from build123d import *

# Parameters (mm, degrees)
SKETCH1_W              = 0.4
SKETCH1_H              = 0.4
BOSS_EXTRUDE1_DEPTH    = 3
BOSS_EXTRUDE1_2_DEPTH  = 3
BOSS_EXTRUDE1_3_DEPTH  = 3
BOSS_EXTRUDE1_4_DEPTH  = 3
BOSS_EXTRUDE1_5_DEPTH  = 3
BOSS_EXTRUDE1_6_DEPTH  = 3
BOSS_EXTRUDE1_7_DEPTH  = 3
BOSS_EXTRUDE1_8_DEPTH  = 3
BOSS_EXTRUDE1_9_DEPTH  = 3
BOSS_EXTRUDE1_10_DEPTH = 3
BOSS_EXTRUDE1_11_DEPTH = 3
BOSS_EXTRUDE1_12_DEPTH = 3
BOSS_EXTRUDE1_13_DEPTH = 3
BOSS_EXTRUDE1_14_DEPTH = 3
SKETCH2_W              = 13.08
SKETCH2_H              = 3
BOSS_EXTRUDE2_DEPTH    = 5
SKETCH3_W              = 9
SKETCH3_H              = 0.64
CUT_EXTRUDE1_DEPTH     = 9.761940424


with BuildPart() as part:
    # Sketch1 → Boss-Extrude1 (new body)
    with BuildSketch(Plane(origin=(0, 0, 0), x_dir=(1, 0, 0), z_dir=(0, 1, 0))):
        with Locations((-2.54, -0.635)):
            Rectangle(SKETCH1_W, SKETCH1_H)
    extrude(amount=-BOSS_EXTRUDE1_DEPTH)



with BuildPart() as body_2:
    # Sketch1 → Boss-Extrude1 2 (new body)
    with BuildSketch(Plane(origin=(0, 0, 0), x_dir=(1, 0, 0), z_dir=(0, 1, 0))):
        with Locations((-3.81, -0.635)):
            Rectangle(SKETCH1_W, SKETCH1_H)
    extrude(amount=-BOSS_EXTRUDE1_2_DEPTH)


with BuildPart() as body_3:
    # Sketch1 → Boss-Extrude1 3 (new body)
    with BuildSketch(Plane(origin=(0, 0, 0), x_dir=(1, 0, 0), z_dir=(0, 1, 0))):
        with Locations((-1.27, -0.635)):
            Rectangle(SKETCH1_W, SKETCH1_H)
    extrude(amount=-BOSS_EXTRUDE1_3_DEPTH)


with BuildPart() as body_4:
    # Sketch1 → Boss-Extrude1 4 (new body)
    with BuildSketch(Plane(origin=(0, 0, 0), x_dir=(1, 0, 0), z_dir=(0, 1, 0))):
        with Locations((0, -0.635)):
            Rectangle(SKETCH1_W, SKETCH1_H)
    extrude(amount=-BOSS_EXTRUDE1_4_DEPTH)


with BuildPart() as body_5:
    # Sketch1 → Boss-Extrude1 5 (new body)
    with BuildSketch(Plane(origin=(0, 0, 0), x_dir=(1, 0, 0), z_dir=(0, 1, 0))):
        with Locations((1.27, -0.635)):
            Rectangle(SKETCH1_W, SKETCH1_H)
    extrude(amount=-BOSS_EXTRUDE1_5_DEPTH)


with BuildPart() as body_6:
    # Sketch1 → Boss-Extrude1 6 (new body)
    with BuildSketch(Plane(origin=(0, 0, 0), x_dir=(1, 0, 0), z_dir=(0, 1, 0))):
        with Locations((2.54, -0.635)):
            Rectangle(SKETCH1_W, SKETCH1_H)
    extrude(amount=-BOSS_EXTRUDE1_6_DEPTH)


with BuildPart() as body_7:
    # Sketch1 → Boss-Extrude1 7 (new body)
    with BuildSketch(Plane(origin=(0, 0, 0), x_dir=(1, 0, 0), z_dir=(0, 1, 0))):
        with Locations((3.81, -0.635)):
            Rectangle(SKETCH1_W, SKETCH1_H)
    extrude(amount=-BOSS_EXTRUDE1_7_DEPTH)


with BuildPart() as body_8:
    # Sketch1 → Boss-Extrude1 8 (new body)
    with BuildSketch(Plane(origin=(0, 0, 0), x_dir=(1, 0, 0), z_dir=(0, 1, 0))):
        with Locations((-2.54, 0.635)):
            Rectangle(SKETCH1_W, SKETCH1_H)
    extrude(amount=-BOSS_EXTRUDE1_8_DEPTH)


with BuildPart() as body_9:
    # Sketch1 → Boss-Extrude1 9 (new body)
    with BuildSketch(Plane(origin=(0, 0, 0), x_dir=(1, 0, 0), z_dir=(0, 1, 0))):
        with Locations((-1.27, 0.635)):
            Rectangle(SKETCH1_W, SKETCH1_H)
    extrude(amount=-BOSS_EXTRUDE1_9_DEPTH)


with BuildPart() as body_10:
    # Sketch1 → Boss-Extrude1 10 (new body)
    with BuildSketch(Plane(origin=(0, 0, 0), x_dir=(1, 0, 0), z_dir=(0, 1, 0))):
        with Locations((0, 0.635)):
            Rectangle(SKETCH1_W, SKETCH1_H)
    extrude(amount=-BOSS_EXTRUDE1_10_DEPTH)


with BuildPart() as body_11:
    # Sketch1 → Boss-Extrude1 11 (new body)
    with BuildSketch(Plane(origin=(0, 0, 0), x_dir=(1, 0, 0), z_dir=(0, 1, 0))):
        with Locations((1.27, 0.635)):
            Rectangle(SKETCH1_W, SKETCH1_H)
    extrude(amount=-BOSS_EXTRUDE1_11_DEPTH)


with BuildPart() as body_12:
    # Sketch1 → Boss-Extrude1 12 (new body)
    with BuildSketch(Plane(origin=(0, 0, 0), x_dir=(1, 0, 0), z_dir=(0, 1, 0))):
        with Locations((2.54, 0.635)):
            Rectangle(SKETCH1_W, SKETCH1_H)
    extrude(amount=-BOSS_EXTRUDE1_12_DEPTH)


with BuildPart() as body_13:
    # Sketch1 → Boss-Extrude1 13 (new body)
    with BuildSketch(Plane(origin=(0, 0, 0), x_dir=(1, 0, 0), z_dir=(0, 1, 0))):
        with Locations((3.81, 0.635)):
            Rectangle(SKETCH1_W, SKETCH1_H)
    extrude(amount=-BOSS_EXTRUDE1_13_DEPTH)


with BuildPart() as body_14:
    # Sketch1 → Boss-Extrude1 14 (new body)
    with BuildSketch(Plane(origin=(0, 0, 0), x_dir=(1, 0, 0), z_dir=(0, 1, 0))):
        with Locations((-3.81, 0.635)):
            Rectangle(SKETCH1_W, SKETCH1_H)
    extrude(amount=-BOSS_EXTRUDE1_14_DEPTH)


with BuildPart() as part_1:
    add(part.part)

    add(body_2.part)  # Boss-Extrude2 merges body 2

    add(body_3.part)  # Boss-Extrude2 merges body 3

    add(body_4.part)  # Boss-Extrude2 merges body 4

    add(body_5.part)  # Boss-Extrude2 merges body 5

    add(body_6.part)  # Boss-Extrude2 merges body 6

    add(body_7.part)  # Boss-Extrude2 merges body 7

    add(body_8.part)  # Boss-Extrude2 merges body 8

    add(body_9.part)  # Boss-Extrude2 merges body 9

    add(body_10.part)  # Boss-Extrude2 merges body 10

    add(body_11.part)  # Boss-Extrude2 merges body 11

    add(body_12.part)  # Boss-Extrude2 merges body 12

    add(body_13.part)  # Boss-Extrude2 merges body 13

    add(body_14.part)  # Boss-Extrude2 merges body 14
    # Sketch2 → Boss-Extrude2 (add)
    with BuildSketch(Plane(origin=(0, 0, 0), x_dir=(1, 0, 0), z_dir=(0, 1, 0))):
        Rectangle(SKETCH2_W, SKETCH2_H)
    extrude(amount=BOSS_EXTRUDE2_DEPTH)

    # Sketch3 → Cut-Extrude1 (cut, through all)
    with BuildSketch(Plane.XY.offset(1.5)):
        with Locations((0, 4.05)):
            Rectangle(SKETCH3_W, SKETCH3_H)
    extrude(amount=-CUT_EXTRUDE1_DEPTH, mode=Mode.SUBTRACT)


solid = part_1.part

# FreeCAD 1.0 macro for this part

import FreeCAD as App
import Part
import Sketcher

doc = App.newDocument("Part")
body = doc.addObject("PartDesign::Body", "Body")

# Sketch on XZ plane
sketch1 = doc.addObject("Sketcher::SketchObject", "Sketch")
body.addObject(sketch1)
sketch1.AttachmentSupport = (doc.XZ_Plane, [""])
sketch1.MapMode = "FlatFace"
sketch1.addGeometry([
    Part.LineSegment(App.Vector(-2.74, 0.43, 0), App.Vector(-2.74, 0.83, 0)),
    Part.LineSegment(App.Vector(-2.74, 0.83, 0), App.Vector(-2.34, 0.83, 0)),
    Part.LineSegment(App.Vector(-2.34, 0.83, 0), App.Vector(-2.34, 0.43, 0)),
    Part.LineSegment(App.Vector(-2.34, 0.43, 0), App.Vector(-2.74, 0.43, 0)),
], False)
sketch1.addConstraint([
    Sketcher.Constraint("Coincident", 0, 2, 1, 1),
    Sketcher.Constraint("Coincident", 1, 2, 2, 1),
    Sketcher.Constraint("Coincident", 2, 2, 3, 1),
    Sketcher.Constraint("Coincident", 3, 2, 0, 1),
    Sketcher.Constraint("Vertical", 0),
    Sketcher.Constraint("Horizontal", 1),
    Sketcher.Constraint("Vertical", 2),
    Sketcher.Constraint("Horizontal", 3),
    Sketcher.Constraint("Equal", 3, 0),
    Sketcher.Constraint("DistanceX", 1, 1, 1, 2, 0.4),
    Sketcher.Constraint("DistanceX", 0, 2, -1, 1, 2.74),
    Sketcher.Constraint("DistanceY", -1, 1, 0, 2, 0.835),
])
pad1 = doc.addObject("PartDesign::Pad", "Pad")
body.addObject(pad1)
pad1.Profile = sketch1
pad1.Length = 3
body2 = doc.addObject("PartDesign::Body", "Body001")

# Sketch on XZ plane
sketch2 = doc.addObject("Sketcher::SketchObject", "Sketch001")
body2.addObject(sketch2)
sketch2.AttachmentSupport = (doc.getObject("XZ_Plane001"), [""])
sketch2.MapMode = "FlatFace"
sketch2.addGeometry([
    Part.LineSegment(App.Vector(-4.01, 0.43, 0), App.Vector(-4.01, 0.83, 0)),
    Part.LineSegment(App.Vector(-4.01, 0.83, 0), App.Vector(-3.61, 0.83, 0)),
    Part.LineSegment(App.Vector(-3.61, 0.83, 0), App.Vector(-3.61, 0.43, 0)),
    Part.LineSegment(App.Vector(-3.61, 0.43, 0), App.Vector(-4.01, 0.43, 0)),
], False)
sketch2.addConstraint([
    Sketcher.Constraint("Coincident", 0, 2, 1, 1),
    Sketcher.Constraint("Coincident", 1, 2, 2, 1),
    Sketcher.Constraint("Coincident", 2, 2, 3, 1),
    Sketcher.Constraint("Coincident", 3, 2, 0, 1),
    Sketcher.Constraint("Vertical", 0),
    Sketcher.Constraint("Horizontal", 1),
    Sketcher.Constraint("Vertical", 2),
    Sketcher.Constraint("Horizontal", 3),
    Sketcher.Constraint("Equal", 3, 0),
    Sketcher.Constraint("DistanceX", 1, 1, 1, 2, 0.4),
    Sketcher.Constraint("DistanceX", 0, 2, -1, 1, 4.01),
    Sketcher.Constraint("DistanceY", -1, 1, 0, 2, 0.835),
])
pad2 = doc.addObject("PartDesign::Pad", "Pad001")
body2.addObject(pad2)
pad2.Profile = sketch2
pad2.Length = 3
body3 = doc.addObject("PartDesign::Body", "Body002")

# Sketch on XZ plane
sketch3 = doc.addObject("Sketcher::SketchObject", "Sketch002")
body3.addObject(sketch3)
sketch3.AttachmentSupport = (doc.getObject("XZ_Plane002"), [""])
sketch3.MapMode = "FlatFace"
sketch3.addGeometry([
    Part.LineSegment(App.Vector(-1.47, 0.43, 0), App.Vector(-1.47, 0.83, 0)),
    Part.LineSegment(App.Vector(-1.47, 0.83, 0), App.Vector(-1.07, 0.83, 0)),
    Part.LineSegment(App.Vector(-1.07, 0.83, 0), App.Vector(-1.07, 0.43, 0)),
    Part.LineSegment(App.Vector(-1.07, 0.43, 0), App.Vector(-1.47, 0.43, 0)),
], False)
sketch3.addConstraint([
    Sketcher.Constraint("Coincident", 0, 2, 1, 1),
    Sketcher.Constraint("Coincident", 1, 2, 2, 1),
    Sketcher.Constraint("Coincident", 2, 2, 3, 1),
    Sketcher.Constraint("Coincident", 3, 2, 0, 1),
    Sketcher.Constraint("Vertical", 0),
    Sketcher.Constraint("Horizontal", 1),
    Sketcher.Constraint("Vertical", 2),
    Sketcher.Constraint("Horizontal", 3),
    Sketcher.Constraint("Equal", 3, 0),
    Sketcher.Constraint("DistanceX", 1, 1, 1, 2, 0.4),
    Sketcher.Constraint("DistanceX", 0, 2, -1, 1, 1.47),
    Sketcher.Constraint("DistanceY", -1, 1, 0, 2, 0.835),
])
pad3 = doc.addObject("PartDesign::Pad", "Pad002")
body3.addObject(pad3)
pad3.Profile = sketch3
pad3.Length = 3
body4 = doc.addObject("PartDesign::Body", "Body003")

# Sketch on XZ plane
sketch4 = doc.addObject("Sketcher::SketchObject", "Sketch003")
body4.addObject(sketch4)
sketch4.AttachmentSupport = (doc.getObject("XZ_Plane003"), [""])
sketch4.MapMode = "FlatFace"
sketch4.addGeometry([
    Part.LineSegment(App.Vector(-0.2, 0.43, 0), App.Vector(-0.2, 0.83, 0)),
    Part.LineSegment(App.Vector(-0.2, 0.83, 0), App.Vector(0.2, 0.83, 0)),
    Part.LineSegment(App.Vector(0.2, 0.83, 0), App.Vector(0.2, 0.43, 0)),
    Part.LineSegment(App.Vector(0.2, 0.43, 0), App.Vector(-0.2, 0.43, 0)),
], False)
sketch4.addConstraint([
    Sketcher.Constraint("Coincident", 0, 2, 1, 1),
    Sketcher.Constraint("Coincident", 1, 2, 2, 1),
    Sketcher.Constraint("Coincident", 2, 2, 3, 1),
    Sketcher.Constraint("Coincident", 3, 2, 0, 1),
    Sketcher.Constraint("Vertical", 0),
    Sketcher.Constraint("Horizontal", 1),
    Sketcher.Constraint("Vertical", 2),
    Sketcher.Constraint("Horizontal", 3),
    Sketcher.Constraint("Equal", 3, 0),
    Sketcher.Constraint("DistanceX", 1, 1, 1, 2, 0.4),
    Sketcher.Constraint("DistanceX", 0, 2, -1, 1, 0.2),
    Sketcher.Constraint("DistanceY", -1, 1, 0, 2, 0.835),
])
pad4 = doc.addObject("PartDesign::Pad", "Pad003")
body4.addObject(pad4)
pad4.Profile = sketch4
pad4.Length = 3
body5 = doc.addObject("PartDesign::Body", "Body004")

# Sketch on XZ plane
sketch5 = doc.addObject("Sketcher::SketchObject", "Sketch004")
body5.addObject(sketch5)
sketch5.AttachmentSupport = (doc.getObject("XZ_Plane004"), [""])
sketch5.MapMode = "FlatFace"
sketch5.addGeometry([
    Part.LineSegment(App.Vector(1.07, 0.43, 0), App.Vector(1.07, 0.83, 0)),
    Part.LineSegment(App.Vector(1.07, 0.83, 0), App.Vector(1.47, 0.83, 0)),
    Part.LineSegment(App.Vector(1.47, 0.83, 0), App.Vector(1.47, 0.43, 0)),
    Part.LineSegment(App.Vector(1.47, 0.43, 0), App.Vector(1.07, 0.43, 0)),
], False)
sketch5.addConstraint([
    Sketcher.Constraint("Coincident", 0, 2, 1, 1),
    Sketcher.Constraint("Coincident", 1, 2, 2, 1),
    Sketcher.Constraint("Coincident", 2, 2, 3, 1),
    Sketcher.Constraint("Coincident", 3, 2, 0, 1),
    Sketcher.Constraint("Vertical", 0),
    Sketcher.Constraint("Horizontal", 1),
    Sketcher.Constraint("Vertical", 2),
    Sketcher.Constraint("Horizontal", 3),
    Sketcher.Constraint("Equal", 3, 0),
    Sketcher.Constraint("DistanceX", 1, 1, 1, 2, 0.4),
    Sketcher.Constraint("DistanceX", -1, 1, 0, 2, 1.07),
    Sketcher.Constraint("DistanceY", -1, 1, 0, 2, 0.835),
])
pad5 = doc.addObject("PartDesign::Pad", "Pad004")
body5.addObject(pad5)
pad5.Profile = sketch5
pad5.Length = 3
body6 = doc.addObject("PartDesign::Body", "Body005")

# Sketch on XZ plane
sketch6 = doc.addObject("Sketcher::SketchObject", "Sketch005")
body6.addObject(sketch6)
sketch6.AttachmentSupport = (doc.getObject("XZ_Plane005"), [""])
sketch6.MapMode = "FlatFace"
sketch6.addGeometry([
    Part.LineSegment(App.Vector(2.34, 0.43, 0), App.Vector(2.34, 0.83, 0)),
    Part.LineSegment(App.Vector(2.34, 0.83, 0), App.Vector(2.74, 0.83, 0)),
    Part.LineSegment(App.Vector(2.74, 0.83, 0), App.Vector(2.74, 0.43, 0)),
    Part.LineSegment(App.Vector(2.74, 0.43, 0), App.Vector(2.34, 0.43, 0)),
], False)
sketch6.addConstraint([
    Sketcher.Constraint("Coincident", 0, 2, 1, 1),
    Sketcher.Constraint("Coincident", 1, 2, 2, 1),
    Sketcher.Constraint("Coincident", 2, 2, 3, 1),
    Sketcher.Constraint("Coincident", 3, 2, 0, 1),
    Sketcher.Constraint("Vertical", 0),
    Sketcher.Constraint("Horizontal", 1),
    Sketcher.Constraint("Vertical", 2),
    Sketcher.Constraint("Horizontal", 3),
    Sketcher.Constraint("Equal", 3, 0),
    Sketcher.Constraint("DistanceX", 1, 1, 1, 2, 0.4),
    Sketcher.Constraint("DistanceX", -1, 1, 0, 2, 2.34),
    Sketcher.Constraint("DistanceY", -1, 1, 0, 2, 0.835),
])
pad6 = doc.addObject("PartDesign::Pad", "Pad005")
body6.addObject(pad6)
pad6.Profile = sketch6
pad6.Length = 3
body7 = doc.addObject("PartDesign::Body", "Body006")

# Sketch on XZ plane
sketch7 = doc.addObject("Sketcher::SketchObject", "Sketch006")
body7.addObject(sketch7)
sketch7.AttachmentSupport = (doc.getObject("XZ_Plane006"), [""])
sketch7.MapMode = "FlatFace"
sketch7.addGeometry([
    Part.LineSegment(App.Vector(3.61, 0.43, 0), App.Vector(3.61, 0.83, 0)),
    Part.LineSegment(App.Vector(3.61, 0.83, 0), App.Vector(4.01, 0.83, 0)),
    Part.LineSegment(App.Vector(4.01, 0.83, 0), App.Vector(4.01, 0.43, 0)),
    Part.LineSegment(App.Vector(4.01, 0.43, 0), App.Vector(3.61, 0.43, 0)),
], False)
sketch7.addConstraint([
    Sketcher.Constraint("Coincident", 0, 2, 1, 1),
    Sketcher.Constraint("Coincident", 1, 2, 2, 1),
    Sketcher.Constraint("Coincident", 2, 2, 3, 1),
    Sketcher.Constraint("Coincident", 3, 2, 0, 1),
    Sketcher.Constraint("Vertical", 0),
    Sketcher.Constraint("Horizontal", 1),
    Sketcher.Constraint("Vertical", 2),
    Sketcher.Constraint("Horizontal", 3),
    Sketcher.Constraint("Equal", 3, 0),
    Sketcher.Constraint("DistanceX", 1, 1, 1, 2, 0.4),
    Sketcher.Constraint("DistanceX", -1, 1, 0, 2, 3.61),
    Sketcher.Constraint("DistanceY", -1, 1, 0, 2, 0.835),
])
pad7 = doc.addObject("PartDesign::Pad", "Pad006")
body7.addObject(pad7)
pad7.Profile = sketch7
pad7.Length = 3
body8 = doc.addObject("PartDesign::Body", "Body007")

# Sketch on XZ plane
sketch8 = doc.addObject("Sketcher::SketchObject", "Sketch007")
body8.addObject(sketch8)
sketch8.AttachmentSupport = (doc.getObject("XZ_Plane007"), [""])
sketch8.MapMode = "FlatFace"
sketch8.addGeometry([
    Part.LineSegment(App.Vector(-2.74, -0.83, 0), App.Vector(-2.74, -0.43, 0)),
    Part.LineSegment(App.Vector(-2.74, -0.43, 0), App.Vector(-2.34, -0.43, 0)),
    Part.LineSegment(App.Vector(-2.34, -0.43, 0), App.Vector(-2.34, -0.83, 0)),
    Part.LineSegment(App.Vector(-2.34, -0.83, 0), App.Vector(-2.74, -0.83, 0)),
], False)
sketch8.addConstraint([
    Sketcher.Constraint("Coincident", 0, 2, 1, 1),
    Sketcher.Constraint("Coincident", 1, 2, 2, 1),
    Sketcher.Constraint("Coincident", 2, 2, 3, 1),
    Sketcher.Constraint("Coincident", 3, 2, 0, 1),
    Sketcher.Constraint("Vertical", 0),
    Sketcher.Constraint("Horizontal", 1),
    Sketcher.Constraint("Vertical", 2),
    Sketcher.Constraint("Horizontal", 3),
    Sketcher.Constraint("Equal", 3, 0),
    Sketcher.Constraint("DistanceX", 1, 1, 1, 2, 0.4),
    Sketcher.Constraint("DistanceX", 0, 2, -1, 1, 2.74),
    Sketcher.Constraint("DistanceY", 0, 2, -1, 1, 0.435),
])
pad8 = doc.addObject("PartDesign::Pad", "Pad007")
body8.addObject(pad8)
pad8.Profile = sketch8
pad8.Length = 3
body9 = doc.addObject("PartDesign::Body", "Body008")

# Sketch on XZ plane
sketch9 = doc.addObject("Sketcher::SketchObject", "Sketch008")
body9.addObject(sketch9)
sketch9.AttachmentSupport = (doc.getObject("XZ_Plane008"), [""])
sketch9.MapMode = "FlatFace"
sketch9.addGeometry([
    Part.LineSegment(App.Vector(-1.47, -0.83, 0), App.Vector(-1.47, -0.43, 0)),
    Part.LineSegment(App.Vector(-1.47, -0.43, 0), App.Vector(-1.07, -0.43, 0)),
    Part.LineSegment(App.Vector(-1.07, -0.43, 0), App.Vector(-1.07, -0.83, 0)),
    Part.LineSegment(App.Vector(-1.07, -0.83, 0), App.Vector(-1.47, -0.83, 0)),
], False)
sketch9.addConstraint([
    Sketcher.Constraint("Coincident", 0, 2, 1, 1),
    Sketcher.Constraint("Coincident", 1, 2, 2, 1),
    Sketcher.Constraint("Coincident", 2, 2, 3, 1),
    Sketcher.Constraint("Coincident", 3, 2, 0, 1),
    Sketcher.Constraint("Vertical", 0),
    Sketcher.Constraint("Horizontal", 1),
    Sketcher.Constraint("Vertical", 2),
    Sketcher.Constraint("Horizontal", 3),
    Sketcher.Constraint("Equal", 3, 0),
    Sketcher.Constraint("DistanceX", 1, 1, 1, 2, 0.4),
    Sketcher.Constraint("DistanceX", 0, 2, -1, 1, 1.47),
    Sketcher.Constraint("DistanceY", 0, 2, -1, 1, 0.435),
])
pad9 = doc.addObject("PartDesign::Pad", "Pad008")
body9.addObject(pad9)
pad9.Profile = sketch9
pad9.Length = 3
body10 = doc.addObject("PartDesign::Body", "Body009")

# Sketch on XZ plane
sketch10 = doc.addObject("Sketcher::SketchObject", "Sketch009")
body10.addObject(sketch10)
sketch10.AttachmentSupport = (doc.getObject("XZ_Plane009"), [""])
sketch10.MapMode = "FlatFace"
sketch10.addGeometry([
    Part.LineSegment(App.Vector(-0.2, -0.83, 0), App.Vector(-0.2, -0.43, 0)),
    Part.LineSegment(App.Vector(-0.2, -0.43, 0), App.Vector(0.2, -0.43, 0)),
    Part.LineSegment(App.Vector(0.2, -0.43, 0), App.Vector(0.2, -0.83, 0)),
    Part.LineSegment(App.Vector(0.2, -0.83, 0), App.Vector(-0.2, -0.83, 0)),
], False)
sketch10.addConstraint([
    Sketcher.Constraint("Coincident", 0, 2, 1, 1),
    Sketcher.Constraint("Coincident", 1, 2, 2, 1),
    Sketcher.Constraint("Coincident", 2, 2, 3, 1),
    Sketcher.Constraint("Coincident", 3, 2, 0, 1),
    Sketcher.Constraint("Vertical", 0),
    Sketcher.Constraint("Horizontal", 1),
    Sketcher.Constraint("Vertical", 2),
    Sketcher.Constraint("Horizontal", 3),
    Sketcher.Constraint("Equal", 3, 0),
    Sketcher.Constraint("DistanceX", 1, 1, 1, 2, 0.4),
    Sketcher.Constraint("DistanceX", 0, 2, -1, 1, 0.2),
    Sketcher.Constraint("DistanceY", 0, 2, -1, 1, 0.435),
])
pad10 = doc.addObject("PartDesign::Pad", "Pad009")
body10.addObject(pad10)
pad10.Profile = sketch10
pad10.Length = 3
body11 = doc.addObject("PartDesign::Body", "Body010")

# Sketch on XZ plane
sketch11 = doc.addObject("Sketcher::SketchObject", "Sketch010")
body11.addObject(sketch11)
sketch11.AttachmentSupport = (doc.getObject("XZ_Plane010"), [""])
sketch11.MapMode = "FlatFace"
sketch11.addGeometry([
    Part.LineSegment(App.Vector(1.07, -0.83, 0), App.Vector(1.07, -0.43, 0)),
    Part.LineSegment(App.Vector(1.07, -0.43, 0), App.Vector(1.47, -0.43, 0)),
    Part.LineSegment(App.Vector(1.47, -0.43, 0), App.Vector(1.47, -0.83, 0)),
    Part.LineSegment(App.Vector(1.47, -0.83, 0), App.Vector(1.07, -0.83, 0)),
], False)
sketch11.addConstraint([
    Sketcher.Constraint("Coincident", 0, 2, 1, 1),
    Sketcher.Constraint("Coincident", 1, 2, 2, 1),
    Sketcher.Constraint("Coincident", 2, 2, 3, 1),
    Sketcher.Constraint("Coincident", 3, 2, 0, 1),
    Sketcher.Constraint("Vertical", 0),
    Sketcher.Constraint("Horizontal", 1),
    Sketcher.Constraint("Vertical", 2),
    Sketcher.Constraint("Horizontal", 3),
    Sketcher.Constraint("Equal", 3, 0),
    Sketcher.Constraint("DistanceX", 1, 1, 1, 2, 0.4),
    Sketcher.Constraint("DistanceX", -1, 1, 0, 2, 1.07),
    Sketcher.Constraint("DistanceY", 0, 2, -1, 1, 0.435),
])
pad11 = doc.addObject("PartDesign::Pad", "Pad010")
body11.addObject(pad11)
pad11.Profile = sketch11
pad11.Length = 3
body12 = doc.addObject("PartDesign::Body", "Body011")

# Sketch on XZ plane
sketch12 = doc.addObject("Sketcher::SketchObject", "Sketch011")
body12.addObject(sketch12)
sketch12.AttachmentSupport = (doc.getObject("XZ_Plane011"), [""])
sketch12.MapMode = "FlatFace"
sketch12.addGeometry([
    Part.LineSegment(App.Vector(2.34, -0.83, 0), App.Vector(2.34, -0.43, 0)),
    Part.LineSegment(App.Vector(2.34, -0.43, 0), App.Vector(2.74, -0.43, 0)),
    Part.LineSegment(App.Vector(2.74, -0.43, 0), App.Vector(2.74, -0.83, 0)),
    Part.LineSegment(App.Vector(2.74, -0.83, 0), App.Vector(2.34, -0.83, 0)),
], False)
sketch12.addConstraint([
    Sketcher.Constraint("Coincident", 0, 2, 1, 1),
    Sketcher.Constraint("Coincident", 1, 2, 2, 1),
    Sketcher.Constraint("Coincident", 2, 2, 3, 1),
    Sketcher.Constraint("Coincident", 3, 2, 0, 1),
    Sketcher.Constraint("Vertical", 0),
    Sketcher.Constraint("Horizontal", 1),
    Sketcher.Constraint("Vertical", 2),
    Sketcher.Constraint("Horizontal", 3),
    Sketcher.Constraint("Equal", 3, 0),
    Sketcher.Constraint("DistanceX", 1, 1, 1, 2, 0.4),
    Sketcher.Constraint("DistanceX", -1, 1, 0, 2, 2.34),
    Sketcher.Constraint("DistanceY", 0, 2, -1, 1, 0.435),
])
pad12 = doc.addObject("PartDesign::Pad", "Pad011")
body12.addObject(pad12)
pad12.Profile = sketch12
pad12.Length = 3
body13 = doc.addObject("PartDesign::Body", "Body012")

# Sketch on XZ plane
sketch13 = doc.addObject("Sketcher::SketchObject", "Sketch012")
body13.addObject(sketch13)
sketch13.AttachmentSupport = (doc.getObject("XZ_Plane012"), [""])
sketch13.MapMode = "FlatFace"
sketch13.addGeometry([
    Part.LineSegment(App.Vector(3.61, -0.83, 0), App.Vector(3.61, -0.43, 0)),
    Part.LineSegment(App.Vector(3.61, -0.43, 0), App.Vector(4.01, -0.43, 0)),
    Part.LineSegment(App.Vector(4.01, -0.43, 0), App.Vector(4.01, -0.83, 0)),
    Part.LineSegment(App.Vector(4.01, -0.83, 0), App.Vector(3.61, -0.83, 0)),
], False)
sketch13.addConstraint([
    Sketcher.Constraint("Coincident", 0, 2, 1, 1),
    Sketcher.Constraint("Coincident", 1, 2, 2, 1),
    Sketcher.Constraint("Coincident", 2, 2, 3, 1),
    Sketcher.Constraint("Coincident", 3, 2, 0, 1),
    Sketcher.Constraint("Vertical", 0),
    Sketcher.Constraint("Horizontal", 1),
    Sketcher.Constraint("Vertical", 2),
    Sketcher.Constraint("Horizontal", 3),
    Sketcher.Constraint("Equal", 3, 0),
    Sketcher.Constraint("DistanceX", 1, 1, 1, 2, 0.4),
    Sketcher.Constraint("DistanceX", -1, 1, 0, 2, 3.61),
    Sketcher.Constraint("DistanceY", 0, 2, -1, 1, 0.435),
])
pad13 = doc.addObject("PartDesign::Pad", "Pad012")
body13.addObject(pad13)
pad13.Profile = sketch13
pad13.Length = 3
body14 = doc.addObject("PartDesign::Body", "Body013")

# Sketch on XZ plane
sketch14 = doc.addObject("Sketcher::SketchObject", "Sketch013")
body14.addObject(sketch14)
sketch14.AttachmentSupport = (doc.getObject("XZ_Plane013"), [""])
sketch14.MapMode = "FlatFace"
sketch14.addGeometry([
    Part.LineSegment(App.Vector(-4.01, -0.83, 0), App.Vector(-4.01, -0.43, 0)),
    Part.LineSegment(App.Vector(-4.01, -0.43, 0), App.Vector(-3.61, -0.43, 0)),
    Part.LineSegment(App.Vector(-3.61, -0.43, 0), App.Vector(-3.61, -0.83, 0)),
    Part.LineSegment(App.Vector(-3.61, -0.83, 0), App.Vector(-4.01, -0.83, 0)),
], False)
sketch14.addConstraint([
    Sketcher.Constraint("Coincident", 0, 2, 1, 1),
    Sketcher.Constraint("Coincident", 1, 2, 2, 1),
    Sketcher.Constraint("Coincident", 2, 2, 3, 1),
    Sketcher.Constraint("Coincident", 3, 2, 0, 1),
    Sketcher.Constraint("Vertical", 0),
    Sketcher.Constraint("Horizontal", 1),
    Sketcher.Constraint("Vertical", 2),
    Sketcher.Constraint("Horizontal", 3),
    Sketcher.Constraint("Equal", 3, 0),
    Sketcher.Constraint("DistanceX", 1, 1, 1, 2, 0.4),
    Sketcher.Constraint("DistanceX", 0, 2, -1, 1, 4.01),
    Sketcher.Constraint("DistanceY", 0, 2, -1, 1, 0.435),
])
pad14 = doc.addObject("PartDesign::Pad", "Pad013")
body14.addObject(pad14)
pad14.Profile = sketch14
pad14.Length = 3
body.AllowCompound = True
doc.recompute()

boolean = doc.addObject("PartDesign::Boolean", "Boolean")
body.addObject(boolean)
boolean.Type = "Fuse"
boolean.addObjects([body2])
doc.recompute()

boolean2 = doc.addObject("PartDesign::Boolean", "Boolean001")
body.addObject(boolean2)
boolean2.Type = "Fuse"
boolean2.addObjects([body3])
doc.recompute()

boolean3 = doc.addObject("PartDesign::Boolean", "Boolean002")
body.addObject(boolean3)
boolean3.Type = "Fuse"
boolean3.addObjects([body4])
doc.recompute()

boolean4 = doc.addObject("PartDesign::Boolean", "Boolean003")
body.addObject(boolean4)
boolean4.Type = "Fuse"
boolean4.addObjects([body5])
doc.recompute()

boolean5 = doc.addObject("PartDesign::Boolean", "Boolean004")
body.addObject(boolean5)
boolean5.Type = "Fuse"
boolean5.addObjects([body6])
doc.recompute()

boolean6 = doc.addObject("PartDesign::Boolean", "Boolean005")
body.addObject(boolean6)
boolean6.Type = "Fuse"
boolean6.addObjects([body7])
doc.recompute()

boolean7 = doc.addObject("PartDesign::Boolean", "Boolean006")
body.addObject(boolean7)
boolean7.Type = "Fuse"
boolean7.addObjects([body8])
doc.recompute()

boolean8 = doc.addObject("PartDesign::Boolean", "Boolean007")
body.addObject(boolean8)
boolean8.Type = "Fuse"
boolean8.addObjects([body9])
doc.recompute()

boolean9 = doc.addObject("PartDesign::Boolean", "Boolean008")
body.addObject(boolean9)
boolean9.Type = "Fuse"
boolean9.addObjects([body10])
doc.recompute()

boolean10 = doc.addObject("PartDesign::Boolean", "Boolean009")
body.addObject(boolean10)
boolean10.Type = "Fuse"
boolean10.addObjects([body11])
doc.recompute()

boolean11 = doc.addObject("PartDesign::Boolean", "Boolean010")
body.addObject(boolean11)
boolean11.Type = "Fuse"
boolean11.addObjects([body12])
doc.recompute()

boolean12 = doc.addObject("PartDesign::Boolean", "Boolean011")
body.addObject(boolean12)
boolean12.Type = "Fuse"
boolean12.addObjects([body13])
doc.recompute()

boolean13 = doc.addObject("PartDesign::Boolean", "Boolean012")
body.addObject(boolean13)
boolean13.Type = "Fuse"
boolean13.addObjects([body14])

# Sketch on XZ plane
sketch15 = doc.addObject("Sketcher::SketchObject", "Sketch014")
body.addObject(sketch15)
sketch15.AttachmentSupport = (doc.XZ_Plane, [""])
sketch15.MapMode = "FlatFace"
sketch15.addGeometry([
    Part.LineSegment(App.Vector(-6.5, -1.5, 0), App.Vector(-6.5, 1.5, 0)),
    Part.LineSegment(App.Vector(-6.5, 1.5, 0), App.Vector(6.5, 1.5, 0)),
    Part.LineSegment(App.Vector(6.5, 1.5, 0), App.Vector(6.5, -1.5, 0)),
    Part.LineSegment(App.Vector(6.5, -1.5, 0), App.Vector(-6.5, -1.5, 0)),
], False)
sketch15.addConstraint([
    Sketcher.Constraint("Coincident", 0, 2, 1, 1),
    Sketcher.Constraint("Coincident", 1, 2, 2, 1),
    Sketcher.Constraint("Coincident", 2, 2, 3, 1),
    Sketcher.Constraint("Coincident", 3, 2, 0, 1),
    Sketcher.Constraint("Vertical", 0),
    Sketcher.Constraint("Horizontal", 1),
    Sketcher.Constraint("Vertical", 2),
    Sketcher.Constraint("Horizontal", 3),
    Sketcher.Constraint("Symmetric", 0, 2, 2, 2, -1, 1),
    Sketcher.Constraint("DistanceY", 0, 1, 0, 2, 3.0),
    Sketcher.Constraint("DistanceX", 1, 1, 1, 2, 13.08),
])
pad15 = doc.addObject("PartDesign::Pad", "Pad014")
body.addObject(pad15)
pad15.Profile = sketch15
pad15.Length = 5
pad15.Reversed = True

# Sketch on XY plane
sketch16 = doc.addObject("Sketcher::SketchObject", "Sketch015")
body.addObject(sketch16)
sketch16.AttachmentSupport = (doc.XY_Plane, [""])
sketch16.MapMode = "FlatFace"
sketch16.AttachmentOffset = App.Placement(App.Vector(0, 0, 1.5), App.Rotation())
sketch16.addGeometry([
    Part.LineSegment(App.Vector(-4.5, 4.4, 0), App.Vector(-4.5, 3.7, 0)),
    Part.LineSegment(App.Vector(-4.5, 3.7, 0), App.Vector(4.5, 3.7, 0)),
    Part.LineSegment(App.Vector(4.5, 3.7, 0), App.Vector(4.5, 4.4, 0)),
    Part.LineSegment(App.Vector(4.5, 4.4, 0), App.Vector(-4.5, 4.4, 0)),
], False)
sketch16.addConstraint([
    Sketcher.Constraint("Coincident", 0, 2, 1, 1),
    Sketcher.Constraint("Coincident", 1, 2, 2, 1),
    Sketcher.Constraint("Coincident", 2, 2, 3, 1),
    Sketcher.Constraint("Coincident", 3, 2, 0, 1),
    Sketcher.Constraint("Vertical", 0),
    Sketcher.Constraint("Horizontal", 1),
    Sketcher.Constraint("Vertical", 2),
    Sketcher.Constraint("Horizontal", 3),
    Sketcher.Constraint("DistanceX", 1, 1, 1, 2, 9.0),
    Sketcher.Constraint("DistanceY", 0, 2, 0, 1, 0.64),
    Sketcher.Constraint("DistanceX", 0, 2, -1, 1, 4.5),
    Sketcher.Constraint("DistanceY", -1, 1, 0, 2, 3.73),
])
pocket1 = doc.addObject("PartDesign::Pocket", "Pocket")
body.addObject(pocket1)
pocket1.Profile = sketch16
pocket1.Type = "ThroughAll"

doc.recompute()
